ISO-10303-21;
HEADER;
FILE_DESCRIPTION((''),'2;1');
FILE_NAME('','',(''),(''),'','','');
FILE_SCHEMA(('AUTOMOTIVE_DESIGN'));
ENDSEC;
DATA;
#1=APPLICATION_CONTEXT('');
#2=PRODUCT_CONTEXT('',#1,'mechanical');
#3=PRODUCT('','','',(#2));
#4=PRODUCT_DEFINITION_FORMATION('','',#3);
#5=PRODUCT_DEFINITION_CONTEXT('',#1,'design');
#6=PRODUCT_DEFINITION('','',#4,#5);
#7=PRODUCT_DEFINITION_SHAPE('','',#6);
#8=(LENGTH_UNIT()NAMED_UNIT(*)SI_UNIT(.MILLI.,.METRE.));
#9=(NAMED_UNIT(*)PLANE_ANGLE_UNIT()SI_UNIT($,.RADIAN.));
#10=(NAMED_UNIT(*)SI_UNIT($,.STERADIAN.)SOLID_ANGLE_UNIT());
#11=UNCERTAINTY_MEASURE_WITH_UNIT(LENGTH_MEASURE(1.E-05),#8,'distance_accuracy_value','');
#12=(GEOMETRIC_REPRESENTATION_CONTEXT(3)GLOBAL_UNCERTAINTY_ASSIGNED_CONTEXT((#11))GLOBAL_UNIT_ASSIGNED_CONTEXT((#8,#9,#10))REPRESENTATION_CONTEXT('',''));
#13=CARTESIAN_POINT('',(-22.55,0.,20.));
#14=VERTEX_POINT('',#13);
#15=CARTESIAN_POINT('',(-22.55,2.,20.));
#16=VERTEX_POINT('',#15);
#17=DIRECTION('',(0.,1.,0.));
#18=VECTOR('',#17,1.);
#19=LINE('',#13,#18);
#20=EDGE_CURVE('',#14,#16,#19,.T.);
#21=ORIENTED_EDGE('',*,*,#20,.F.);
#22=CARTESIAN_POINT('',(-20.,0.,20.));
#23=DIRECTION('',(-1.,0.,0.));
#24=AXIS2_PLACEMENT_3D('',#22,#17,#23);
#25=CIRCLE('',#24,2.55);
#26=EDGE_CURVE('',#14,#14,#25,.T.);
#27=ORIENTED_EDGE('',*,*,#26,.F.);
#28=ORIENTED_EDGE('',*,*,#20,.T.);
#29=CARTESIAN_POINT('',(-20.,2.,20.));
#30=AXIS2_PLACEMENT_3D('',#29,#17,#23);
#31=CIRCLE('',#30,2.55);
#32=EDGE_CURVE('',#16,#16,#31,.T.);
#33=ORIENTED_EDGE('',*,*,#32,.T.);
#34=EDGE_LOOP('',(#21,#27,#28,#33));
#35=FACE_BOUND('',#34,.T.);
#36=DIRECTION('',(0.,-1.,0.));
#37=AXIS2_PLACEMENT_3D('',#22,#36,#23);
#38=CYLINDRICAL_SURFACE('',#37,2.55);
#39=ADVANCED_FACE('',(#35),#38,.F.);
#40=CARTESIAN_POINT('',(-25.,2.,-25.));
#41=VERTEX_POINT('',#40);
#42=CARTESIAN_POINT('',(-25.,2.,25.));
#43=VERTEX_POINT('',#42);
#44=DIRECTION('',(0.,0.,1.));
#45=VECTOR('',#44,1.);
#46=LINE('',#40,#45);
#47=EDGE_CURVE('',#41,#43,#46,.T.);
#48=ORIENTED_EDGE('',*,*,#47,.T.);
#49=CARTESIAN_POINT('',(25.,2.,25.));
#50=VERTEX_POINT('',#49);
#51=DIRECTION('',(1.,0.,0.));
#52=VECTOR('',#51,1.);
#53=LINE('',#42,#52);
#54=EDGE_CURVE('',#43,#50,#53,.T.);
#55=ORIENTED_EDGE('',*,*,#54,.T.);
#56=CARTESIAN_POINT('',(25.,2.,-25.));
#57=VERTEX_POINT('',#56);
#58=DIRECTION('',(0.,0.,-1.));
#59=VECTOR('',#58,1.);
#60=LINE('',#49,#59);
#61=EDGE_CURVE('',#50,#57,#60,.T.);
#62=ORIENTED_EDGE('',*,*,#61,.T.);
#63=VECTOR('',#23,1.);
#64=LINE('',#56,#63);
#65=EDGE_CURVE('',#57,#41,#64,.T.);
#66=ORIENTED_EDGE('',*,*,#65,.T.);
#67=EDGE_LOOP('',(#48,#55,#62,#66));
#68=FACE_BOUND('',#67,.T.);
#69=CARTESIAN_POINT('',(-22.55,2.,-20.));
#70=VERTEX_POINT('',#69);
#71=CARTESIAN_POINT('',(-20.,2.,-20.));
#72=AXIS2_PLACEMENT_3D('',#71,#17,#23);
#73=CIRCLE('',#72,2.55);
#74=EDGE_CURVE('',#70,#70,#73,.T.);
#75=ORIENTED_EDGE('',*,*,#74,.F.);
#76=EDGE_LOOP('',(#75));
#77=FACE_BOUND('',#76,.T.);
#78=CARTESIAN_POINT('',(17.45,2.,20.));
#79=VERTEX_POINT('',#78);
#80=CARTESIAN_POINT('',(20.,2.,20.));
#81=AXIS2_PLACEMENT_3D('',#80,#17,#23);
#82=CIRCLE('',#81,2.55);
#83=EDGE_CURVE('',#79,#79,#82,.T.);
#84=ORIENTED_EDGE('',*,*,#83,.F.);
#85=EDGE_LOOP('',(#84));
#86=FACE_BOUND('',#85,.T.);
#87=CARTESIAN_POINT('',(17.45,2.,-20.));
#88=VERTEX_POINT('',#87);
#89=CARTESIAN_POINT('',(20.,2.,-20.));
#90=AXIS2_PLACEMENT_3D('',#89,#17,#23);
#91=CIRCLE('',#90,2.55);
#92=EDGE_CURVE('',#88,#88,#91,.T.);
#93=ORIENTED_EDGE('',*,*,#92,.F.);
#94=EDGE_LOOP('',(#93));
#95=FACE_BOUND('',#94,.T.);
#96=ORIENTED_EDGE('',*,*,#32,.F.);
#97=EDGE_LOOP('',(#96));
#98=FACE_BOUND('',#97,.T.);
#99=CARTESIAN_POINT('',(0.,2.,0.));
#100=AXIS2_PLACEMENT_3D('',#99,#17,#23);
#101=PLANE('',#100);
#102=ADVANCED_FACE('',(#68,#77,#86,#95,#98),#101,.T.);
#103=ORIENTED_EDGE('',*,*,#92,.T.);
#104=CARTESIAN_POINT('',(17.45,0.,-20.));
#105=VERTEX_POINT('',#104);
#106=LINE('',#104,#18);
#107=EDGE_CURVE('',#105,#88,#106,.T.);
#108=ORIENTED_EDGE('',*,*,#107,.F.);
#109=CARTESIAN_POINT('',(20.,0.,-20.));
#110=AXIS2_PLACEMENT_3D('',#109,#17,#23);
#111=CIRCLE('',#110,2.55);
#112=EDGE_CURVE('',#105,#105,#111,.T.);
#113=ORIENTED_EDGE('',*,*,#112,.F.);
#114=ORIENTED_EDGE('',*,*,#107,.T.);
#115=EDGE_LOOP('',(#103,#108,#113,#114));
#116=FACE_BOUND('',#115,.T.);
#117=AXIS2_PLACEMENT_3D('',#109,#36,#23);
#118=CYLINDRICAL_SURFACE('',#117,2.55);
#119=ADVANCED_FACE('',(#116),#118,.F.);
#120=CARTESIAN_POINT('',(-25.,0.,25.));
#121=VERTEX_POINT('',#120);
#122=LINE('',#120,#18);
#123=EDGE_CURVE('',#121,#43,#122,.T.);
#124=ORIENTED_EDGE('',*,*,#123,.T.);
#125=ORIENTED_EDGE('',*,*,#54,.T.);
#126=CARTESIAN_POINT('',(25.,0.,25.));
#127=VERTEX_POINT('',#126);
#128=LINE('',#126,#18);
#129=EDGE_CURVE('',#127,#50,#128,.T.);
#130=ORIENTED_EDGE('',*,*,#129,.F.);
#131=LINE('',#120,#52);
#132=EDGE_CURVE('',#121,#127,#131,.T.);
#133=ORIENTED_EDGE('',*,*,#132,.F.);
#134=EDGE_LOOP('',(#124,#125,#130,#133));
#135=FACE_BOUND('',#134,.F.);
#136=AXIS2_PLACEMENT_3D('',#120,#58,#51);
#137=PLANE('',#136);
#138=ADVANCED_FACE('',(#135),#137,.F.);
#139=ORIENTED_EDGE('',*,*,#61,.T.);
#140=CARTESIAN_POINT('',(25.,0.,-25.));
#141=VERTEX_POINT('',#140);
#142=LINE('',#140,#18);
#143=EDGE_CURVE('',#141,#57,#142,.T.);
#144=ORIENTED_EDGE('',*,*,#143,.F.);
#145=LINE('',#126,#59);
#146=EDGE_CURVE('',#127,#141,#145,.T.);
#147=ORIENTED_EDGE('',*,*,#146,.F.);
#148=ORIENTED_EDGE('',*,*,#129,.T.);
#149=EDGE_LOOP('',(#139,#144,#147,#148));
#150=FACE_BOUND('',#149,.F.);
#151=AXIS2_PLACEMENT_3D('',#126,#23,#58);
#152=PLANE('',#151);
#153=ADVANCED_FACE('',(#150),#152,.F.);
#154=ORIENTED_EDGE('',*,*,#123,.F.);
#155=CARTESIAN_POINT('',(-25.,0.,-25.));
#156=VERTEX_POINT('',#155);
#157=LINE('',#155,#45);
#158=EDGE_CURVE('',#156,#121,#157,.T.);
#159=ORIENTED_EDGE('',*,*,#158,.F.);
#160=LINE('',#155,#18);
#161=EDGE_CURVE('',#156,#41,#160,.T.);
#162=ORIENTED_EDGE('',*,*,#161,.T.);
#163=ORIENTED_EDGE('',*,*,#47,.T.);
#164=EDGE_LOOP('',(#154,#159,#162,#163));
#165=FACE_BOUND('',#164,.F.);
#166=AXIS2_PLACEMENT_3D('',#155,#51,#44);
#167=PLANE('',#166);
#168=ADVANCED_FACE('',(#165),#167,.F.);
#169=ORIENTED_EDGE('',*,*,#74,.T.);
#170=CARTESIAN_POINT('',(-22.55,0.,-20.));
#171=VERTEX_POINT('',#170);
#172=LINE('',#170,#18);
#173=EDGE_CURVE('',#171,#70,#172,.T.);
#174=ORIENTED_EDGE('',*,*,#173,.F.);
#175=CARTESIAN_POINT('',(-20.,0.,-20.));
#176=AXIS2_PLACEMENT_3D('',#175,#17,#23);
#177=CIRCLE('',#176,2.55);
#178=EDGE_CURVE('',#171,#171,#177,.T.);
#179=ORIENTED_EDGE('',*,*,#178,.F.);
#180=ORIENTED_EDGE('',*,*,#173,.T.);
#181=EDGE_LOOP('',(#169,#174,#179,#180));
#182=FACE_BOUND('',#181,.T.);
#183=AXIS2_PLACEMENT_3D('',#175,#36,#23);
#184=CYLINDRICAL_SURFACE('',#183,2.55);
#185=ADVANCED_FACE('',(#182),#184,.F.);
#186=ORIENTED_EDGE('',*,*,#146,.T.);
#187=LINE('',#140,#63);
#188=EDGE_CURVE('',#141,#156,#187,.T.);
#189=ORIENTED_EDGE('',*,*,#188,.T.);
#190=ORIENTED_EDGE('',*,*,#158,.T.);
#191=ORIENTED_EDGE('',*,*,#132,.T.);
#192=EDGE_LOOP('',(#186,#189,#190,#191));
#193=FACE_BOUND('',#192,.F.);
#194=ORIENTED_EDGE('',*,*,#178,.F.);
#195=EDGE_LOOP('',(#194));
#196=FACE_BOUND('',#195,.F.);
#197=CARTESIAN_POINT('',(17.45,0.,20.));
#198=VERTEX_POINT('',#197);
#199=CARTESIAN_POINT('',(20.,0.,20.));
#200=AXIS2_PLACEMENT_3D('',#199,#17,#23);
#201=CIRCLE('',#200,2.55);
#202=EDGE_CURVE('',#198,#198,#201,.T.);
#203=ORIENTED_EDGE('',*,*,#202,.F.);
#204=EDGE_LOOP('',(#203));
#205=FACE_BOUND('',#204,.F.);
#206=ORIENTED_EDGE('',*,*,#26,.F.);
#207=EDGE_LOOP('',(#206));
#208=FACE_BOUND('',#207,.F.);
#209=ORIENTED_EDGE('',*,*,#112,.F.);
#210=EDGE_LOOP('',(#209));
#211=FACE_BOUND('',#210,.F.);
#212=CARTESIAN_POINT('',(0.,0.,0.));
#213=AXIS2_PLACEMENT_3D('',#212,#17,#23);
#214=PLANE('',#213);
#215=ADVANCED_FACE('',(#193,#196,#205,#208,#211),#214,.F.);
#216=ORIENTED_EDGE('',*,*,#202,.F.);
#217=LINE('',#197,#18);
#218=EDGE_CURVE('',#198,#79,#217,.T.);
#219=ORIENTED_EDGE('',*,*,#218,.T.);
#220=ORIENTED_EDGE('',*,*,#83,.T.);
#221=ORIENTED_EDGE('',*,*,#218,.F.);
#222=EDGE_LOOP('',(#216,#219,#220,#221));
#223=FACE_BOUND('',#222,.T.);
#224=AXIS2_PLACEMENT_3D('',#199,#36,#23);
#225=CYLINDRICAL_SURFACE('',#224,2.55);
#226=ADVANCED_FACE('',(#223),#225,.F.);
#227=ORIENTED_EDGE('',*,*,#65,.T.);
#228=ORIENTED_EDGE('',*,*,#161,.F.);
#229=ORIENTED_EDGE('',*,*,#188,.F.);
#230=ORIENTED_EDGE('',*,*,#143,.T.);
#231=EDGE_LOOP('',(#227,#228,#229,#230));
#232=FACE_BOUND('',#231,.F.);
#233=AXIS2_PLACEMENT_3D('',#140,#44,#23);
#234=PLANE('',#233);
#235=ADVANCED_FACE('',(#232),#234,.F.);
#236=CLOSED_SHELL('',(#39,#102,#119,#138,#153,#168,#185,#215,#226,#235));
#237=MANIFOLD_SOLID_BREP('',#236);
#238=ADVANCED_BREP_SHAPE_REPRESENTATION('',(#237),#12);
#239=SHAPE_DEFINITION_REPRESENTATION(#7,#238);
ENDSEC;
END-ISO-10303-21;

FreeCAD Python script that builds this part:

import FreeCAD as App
import Part
import Sketcher

V = App.Vector
Q = App.Units.Quantity

doc = App.newDocument("Part")
params = doc.addObject("Spreadsheet::Sheet", "Params")
for row, (alias, value) in enumerate([
    ("sketch1_diameter", "5.1 mm"),
    ("sketch1_width", "50 mm"),
    ("pad1_length", "2 mm"),
], start=1):
    params.set(f"A{row}", alias)
    params.set(f"B{row}", "=" + value)
    params.setAlias(f"B{row}", alias)

body = doc.addObject("PartDesign::Body", "Body")

sketch1 = doc.addObject("Sketcher::SketchObject", "Sketch")
body.addObject(sketch1)
sketch1.AttachmentSupport = (doc.XZ_Plane, [""])
sketch1.MapMode = "FlatFace"
sketch1.addGeometry(Part.LineSegment(V(-25, -25, 0), V(-25, 25, 0)), False)
sketch1.addGeometry(Part.LineSegment(V(-25, 25, 0), V(25, 25, 0)), False)
sketch1.addGeometry(Part.LineSegment(V(25, 25, 0), V(25, -25, 0)), False)
sketch1.addGeometry(Part.LineSegment(V(25, -25, 0), V(-25, -25, 0)), False)
sketch1.addGeometry(Part.Circle(V(20, -20, 0), V(0, 0, 1), 2.5), False)
sketch1.addGeometry(Part.Circle(V(-20, -20, 0), V(0, 0, 1), 2.5), False)
sketch1.addGeometry(Part.Circle(V(20, 20, 0), V(0, 0, 1), 2.5), False)
sketch1.addGeometry(Part.Circle(V(-20, 20, 0), V(0, 0, 1), 2.5), False)
sketch1.addConstraint(Sketcher.Constraint("Coincident", 0, 2, 1, 1))
sketch1.addConstraint(Sketcher.Constraint("Coincident", 1, 2, 2, 1))
sketch1.addConstraint(Sketcher.Constraint("Coincident", 2, 2, 3, 1))
sketch1.addConstraint(Sketcher.Constraint("Coincident", 3, 2, 0, 1))
sketch1.addConstraint(Sketcher.Constraint("Vertical", 0))
sketch1.addConstraint(Sketcher.Constraint("Horizontal", 1))
sketch1.addConstraint(Sketcher.Constraint("Vertical", 2))
sketch1.addConstraint(Sketcher.Constraint("Horizontal", 3))
sketch1.addConstraint(Sketcher.Constraint("Equal", 4, 5))
sketch1.addConstraint(Sketcher.Constraint("Equal", 5, 6))
sketch1.addConstraint(Sketcher.Constraint("Equal", 6, 7))
sketch1.addConstraint(Sketcher.Constraint("Symmetric", 5, 3, 6, 3, -1, 1))
sketch1.addConstraint(Sketcher.Constraint("Symmetric", 4, 3, 7, 3, -1, 1))
sketch1.addConstraint(Sketcher.Constraint("Symmetric", 0, 2, 2, 2, -1, 1))
sketch1.addConstraint(Sketcher.Constraint("Symmetric", 4, 3, 5, 3, -2))
sketch1.addConstraint(Sketcher.Constraint("Equal", 3, 0))
sketch1.addConstraint(Sketcher.Constraint("Diameter", 4, Q("5.1 mm")))
sketch1.addConstraint(Sketcher.Constraint("DistanceX", 1, 1, 1, 2, Q("50 mm")))
sketch1.addConstraint(Sketcher.Constraint("DistanceX", 5, 3, 4, 3, Q("40 mm")))
sketch1.addConstraint(Sketcher.Constraint("DistanceY", 4, 3, 6, 3, Q("40 mm")))
sketch1.setExpression("Constraints[16]", "Params.sketch1_diameter")
sketch1.setExpression("Constraints[17]", "Params.sketch1_width")
pad1 = doc.addObject("PartDesign::Pad", "Pad")
body.addObject(pad1)
pad1.Profile = sketch1
pad1.setExpression("Length", "Params.pad1_length")
pad1.Reversed = True

doc.recompute()
